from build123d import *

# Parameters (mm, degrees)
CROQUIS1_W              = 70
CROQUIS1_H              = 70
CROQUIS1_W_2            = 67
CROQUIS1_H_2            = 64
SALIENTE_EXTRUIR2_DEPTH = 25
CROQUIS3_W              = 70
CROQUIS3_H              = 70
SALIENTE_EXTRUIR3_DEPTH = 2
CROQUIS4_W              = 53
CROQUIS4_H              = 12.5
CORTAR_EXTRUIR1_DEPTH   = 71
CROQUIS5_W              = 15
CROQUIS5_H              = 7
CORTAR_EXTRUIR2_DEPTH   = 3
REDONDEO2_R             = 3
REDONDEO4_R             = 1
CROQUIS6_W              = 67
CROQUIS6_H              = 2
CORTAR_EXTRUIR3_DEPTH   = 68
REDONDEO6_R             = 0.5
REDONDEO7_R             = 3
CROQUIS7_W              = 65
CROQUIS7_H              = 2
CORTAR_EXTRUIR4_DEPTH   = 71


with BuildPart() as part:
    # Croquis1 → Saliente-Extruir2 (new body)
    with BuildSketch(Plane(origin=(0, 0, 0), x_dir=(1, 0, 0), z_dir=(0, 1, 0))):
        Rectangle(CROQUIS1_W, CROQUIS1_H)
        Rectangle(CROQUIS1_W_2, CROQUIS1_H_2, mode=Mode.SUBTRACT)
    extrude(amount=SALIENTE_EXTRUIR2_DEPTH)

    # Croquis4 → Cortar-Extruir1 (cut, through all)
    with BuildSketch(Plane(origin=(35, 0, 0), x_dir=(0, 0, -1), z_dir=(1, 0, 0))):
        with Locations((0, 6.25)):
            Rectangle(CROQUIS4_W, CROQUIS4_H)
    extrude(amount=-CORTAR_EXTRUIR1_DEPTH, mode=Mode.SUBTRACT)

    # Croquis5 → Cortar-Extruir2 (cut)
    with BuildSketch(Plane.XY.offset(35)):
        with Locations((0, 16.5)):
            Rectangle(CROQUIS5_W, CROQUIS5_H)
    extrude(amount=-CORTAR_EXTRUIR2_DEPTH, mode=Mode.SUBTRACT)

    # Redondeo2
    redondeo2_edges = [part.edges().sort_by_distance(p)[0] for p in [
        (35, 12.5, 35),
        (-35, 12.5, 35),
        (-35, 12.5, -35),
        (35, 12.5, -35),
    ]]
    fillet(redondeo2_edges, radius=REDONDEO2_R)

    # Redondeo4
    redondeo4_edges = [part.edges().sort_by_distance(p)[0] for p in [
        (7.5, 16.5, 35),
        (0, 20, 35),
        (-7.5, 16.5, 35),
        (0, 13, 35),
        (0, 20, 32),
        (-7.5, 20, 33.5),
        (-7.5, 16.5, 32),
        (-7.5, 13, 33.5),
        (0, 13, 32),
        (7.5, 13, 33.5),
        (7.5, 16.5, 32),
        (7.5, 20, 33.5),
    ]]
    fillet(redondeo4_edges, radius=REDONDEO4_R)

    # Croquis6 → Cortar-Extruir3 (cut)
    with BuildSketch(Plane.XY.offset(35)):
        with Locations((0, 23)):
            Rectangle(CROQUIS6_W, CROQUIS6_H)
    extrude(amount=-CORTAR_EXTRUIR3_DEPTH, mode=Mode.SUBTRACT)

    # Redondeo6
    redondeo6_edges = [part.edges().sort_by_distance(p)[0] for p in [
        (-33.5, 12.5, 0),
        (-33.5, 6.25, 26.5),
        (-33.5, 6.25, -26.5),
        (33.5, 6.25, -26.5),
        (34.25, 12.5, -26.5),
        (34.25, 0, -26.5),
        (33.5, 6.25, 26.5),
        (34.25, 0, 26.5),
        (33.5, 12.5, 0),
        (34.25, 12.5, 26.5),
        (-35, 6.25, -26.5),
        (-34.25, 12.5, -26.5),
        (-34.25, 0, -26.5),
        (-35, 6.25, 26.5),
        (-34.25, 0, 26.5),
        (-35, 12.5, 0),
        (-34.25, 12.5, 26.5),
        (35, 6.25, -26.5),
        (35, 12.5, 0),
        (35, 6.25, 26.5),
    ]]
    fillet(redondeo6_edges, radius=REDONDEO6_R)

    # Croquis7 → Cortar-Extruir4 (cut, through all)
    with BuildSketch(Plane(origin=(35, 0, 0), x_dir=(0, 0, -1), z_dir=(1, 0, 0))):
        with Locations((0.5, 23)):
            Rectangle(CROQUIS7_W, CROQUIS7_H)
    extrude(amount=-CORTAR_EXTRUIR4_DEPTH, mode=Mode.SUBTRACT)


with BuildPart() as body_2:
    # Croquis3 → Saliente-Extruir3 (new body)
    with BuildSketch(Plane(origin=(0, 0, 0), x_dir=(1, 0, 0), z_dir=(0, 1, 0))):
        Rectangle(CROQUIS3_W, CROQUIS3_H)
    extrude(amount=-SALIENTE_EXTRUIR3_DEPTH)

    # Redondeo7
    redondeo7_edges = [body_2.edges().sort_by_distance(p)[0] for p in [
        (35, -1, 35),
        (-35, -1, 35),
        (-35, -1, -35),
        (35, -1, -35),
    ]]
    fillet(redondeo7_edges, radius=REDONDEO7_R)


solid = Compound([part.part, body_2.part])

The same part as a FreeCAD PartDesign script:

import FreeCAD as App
import Part
import Sketcher
from FreeCAD import Vector
Q = App.Units.Quantity


def edges_at(feature, points):
    """Names of the edges that pass closest to the given points."""
    edges = feature.Shape.Edges
    near = lambda p: min(range(len(edges)), key=lambda i: edges[i].distToShape(Part.Vertex(*p))[0])
    return sorted({f"Edge{near(p) + 1}" for p in points})


def add_polygon(sketch, points):
    """Adds a closed chain of lines whose ends are joined by coincident constraints."""
    first, n = sketch.GeometryCount, len(points)
    for a, b in zip(points, points[1:] + points[:1]):
        sketch.addGeometry(Part.LineSegment(App.Vector(*a, 0), App.Vector(*b, 0)), False)
    for i in range(n):
        sketch.addConstraint(Sketcher.Constraint("Coincident", first + i, 2, first + (i + 1) % n, 1))

doc = App.newDocument("Part")
body = doc.addObject("PartDesign::Body", "Body")

# Sketch on XZ plane
sketch1 = body.newObject("Sketcher::SketchObject", "Sketch")
sketch1.AttachmentSupport = (doc.getObject("XZ_Plane"), [""])
sketch1.MapMode = "FlatFace"
add_polygon(sketch1, [(-35, -35), (-35, 35), (35, 35), (35, -35)])  # lines 0-3
add_polygon(sketch1, [(34, 32), (-34, 32), (-34, -32), (34, -32)])  # lines 4-7
sketch1.addConstraint([
    Sketcher.Constraint("Vertical", 0),
    Sketcher.Constraint("Horizontal", 1),
    Sketcher.Constraint("Vertical", 2),
    Sketcher.Constraint("Horizontal", 3),
    Sketcher.Constraint("Horizontal", 4),
    Sketcher.Constraint("Vertical", 5),
    Sketcher.Constraint("Horizontal", 6),
    Sketcher.Constraint("Vertical", 7),
    Sketcher.Constraint("Symmetric", 0, 2, 2, 2, -1, 1),
    Sketcher.Constraint("Symmetric", 4, 2, 6, 2, -1, 1),
    Sketcher.Constraint("Equal", 3, 0),
    Sketcher.Constraint("DistanceX", 1, 1, 1, 2, Q("70 mm")),
    Sketcher.Constraint("DistanceX", 4, 2, 4, 1, Q("67 mm")),
    Sketcher.Constraint("DistanceY", 5, 2, 5, 1, Q("64 mm")),
])
pad1 = body.newObject("PartDesign::Pad", "Pad")
pad1.Profile = sketch1
pad1.Length = 25
pad1.Reversed = True

# Sketch on YZ plane
sketch2 = body.newObject("Sketcher::SketchObject", "Sketch001")
sketch2.AttachmentSupport = (doc.getObject("YZ_Plane"), [""])
sketch2.MapMode = "FlatFace"
sketch2.AttachmentOffset = App.Placement(Vector(0, 0, 35), App.Rotation())
add_polygon(sketch2, [(12, 26), (0, 26), (0, -26), (12, -26)])  # lines 0-3
sketch2.addConstraint([
    Sketcher.Constraint("Horizontal", 0),
    Sketcher.Constraint("Vertical", 1),
    Sketcher.Constraint("Horizontal", 2),
    Sketcher.Constraint("Vertical", 3),
    Sketcher.Constraint("Symmetric", 0, 2, 1, 2, -1, 1),
    Sketcher.Constraint("DistanceY", 1, 2, 1, 1, Q("53 mm")),
    Sketcher.Constraint("DistanceX", 0, 2, 0, 1, Q("12.5 mm")),
])
pocket1 = body.newObject("PartDesign::Pocket", "Pocket")
pocket1.Profile = sketch2
pocket1.Type = "ThroughAll"

# Sketch on XY plane
sketch3 = body.newObject("Sketcher::SketchObject", "Sketch002")
sketch3.AttachmentSupport = (doc.getObject("XY_Plane"), [""])
sketch3.MapMode = "FlatFace"
sketch3.AttachmentOffset = App.Placement(Vector(0, 0, 35), App.Rotation())
add_polygon(sketch3, [(-8, 20), (-8, 13), (8, 13), (8, 20)])  # lines 0-3
sketch3.addConstraint([
    Sketcher.Constraint("Vertical", 0),
    Sketcher.Constraint("Horizontal", 1),
    Sketcher.Constraint("Vertical", 2),
    Sketcher.Constraint("Horizontal", 3),
    Sketcher.Constraint("DistanceX", 1, 1, 1, 2, Q("15 mm")),
    Sketcher.Constraint("DistanceY", 0, 2, 0, 1, Q("7 mm")),
    Sketcher.Constraint("DistanceY", -1, 1, 0, 2, Q("13 mm")),
    Sketcher.Constraint("DistanceX", 0, 2, -1, 1, Q("7.5 mm")),
])
pocket2 = body.newObject("PartDesign::Pocket", "Pocket001")
pocket2.Profile = sketch3
pocket2.Length = 3
doc.recompute()

fillet = body.newObject("PartDesign::Fillet", "Fillet")
fillet.Base = (pocket2, edges_at(pocket2, [
    (35, 12.5, 35),
    (-35, 12.5, 35),
    (-35, 12.5, -35),
    (35, 12.5, -35),
]))
fillet.Radius = 3
doc.recompute()

fillet2 = body.newObject("PartDesign::Fillet", "Fillet001")
fillet2.Base = (fillet, edges_at(fillet, [
    (7.5, 16.5, 35),
    (0, 20, 35),
    (-7.5, 16.5, 35),
    (0, 13, 35),
    (0, 20, 32),
    (-7.5, 20, 33.5),
    (-7.5, 16.5, 32),
    (-7.5, 13, 33.5),
    (0, 13, 32),
    (7.5, 13, 33.5),
    (7.5, 16.5, 32),
    (7.5, 20, 33.5),
]))
fillet2.Radius = 1

# Sketch on XY plane
sketch4 = body.newObject("Sketcher::SketchObject", "Sketch003")
sketch4.AttachmentSupport = (doc.getObject("XY_Plane"), [""])
sketch4.MapMode = "FlatFace"
sketch4.AttachmentOffset = App.Placement(Vector(0, 0, 35), App.Rotation())
add_polygon(sketch4, [(-33.5, 24), (-33.5, 22), (33.5, 22), (33.5, 24)])  # lines 0-3
sketch4.addConstraint([
    Sketcher.Constraint("Vertical", 0),
    Sketcher.Constraint("Horizontal", 1),
    Sketcher.Constraint("Vertical", 2),
    Sketcher.Constraint("Horizontal", 3),
    Sketcher.Constraint("DistanceX", 1, 1, 1, 2, Q("67 mm")),
    Sketcher.Constraint("DistanceY", 0, 2, 0, 1, Q("2 mm")),
    Sketcher.Constraint("DistanceY", -1, 1, 0, 2, Q("22 mm")),
    Sketcher.Constraint("DistanceX", 0, 2, -1, 1, Q("33.5 mm")),
])
pocket3 = body.newObject("PartDesign::Pocket", "Pocket002")
pocket3.Profile = sketch4
pocket3.Length = 68
doc.recompute()

fillet3 = body.newObject("PartDesign::Fillet", "Fillet002")
fillet3.Base = (pocket3, edges_at(pocket3, [
    (-33.5, 12.5, 0),
    (-33.5, 6.25, 26.5),
    (-33.5, 6.25, -26.5),
    (33.5, 6.25, -26.5),
    (34.25, 12.5, -26.5),
    (34.25, 0, -26.5),
    (33.5, 6.25, 26.5),
    (34.25, 0, 26.5),
    (33.5, 12.5, 0),
    (34.25, 12.5, 26.5),
    (-35, 6.25, -26.5),
    (-34.25, 12.5, -26.5),
    (-34.25, 0, -26.5),
    (-35, 6.25, 26.5),
    (-34.25, 0, 26.5),
    (-35, 12.5, 0),
    (-34.25, 12.5, 26.5),
    (35, 6.25, -26.5),
    (35, 12.5, 0),
    (35, 6.25, 26.5),
]))
fillet3.Radius = 0.5

# Sketch on YZ plane
sketch5 = body.newObject("Sketcher::SketchObject", "Sketch004")
sketch5.AttachmentSupport = (doc.getObject("YZ_Plane"), [""])
sketch5.MapMode = "FlatFace"
sketch5.AttachmentOffset = App.Placement(Vector(0, 0, 35), App.Rotation())
add_polygon(sketch5, [(24, 32), (22, 32), (22, -33), (24, -33)])  # lines 0-3
sketch5.addConstraint([
    Sketcher.Constraint("Horizontal", 0),
    Sketcher.Constraint("Vertical", 1),
    Sketcher.Constraint("Horizontal", 2),
    Sketcher.Constraint("Vertical", 3),
    Sketcher.Constraint("DistanceX", 0, 2, 0, 1, Q("2 mm")),
    Sketcher.Constraint("DistanceY", 1, 2, 1, 1, Q("65 mm")),
    Sketcher.Constraint("DistanceX", -1, 1, 0, 2, Q("22 mm")),
    Sketcher.Constraint("DistanceY", -1, 1, 0, 2, Q("32 mm")),
])
pocket4 = body.newObject("PartDesign::Pocket", "Pocket003")
pocket4.Profile = sketch5
pocket4.Type = "ThroughAll"
body2 = doc.addObject("PartDesign::Body", "Body001")

# Sketch on XZ plane
sketch6 = body2.newObject("Sketcher::SketchObject", "Sketch005")
sketch6.AttachmentSupport = (doc.getObject("XZ_Plane001"), [""])
sketch6.MapMode = "FlatFace"
add_polygon(sketch6, [(-35, -35), (-35, 35), (35, 35), (35, -35)])  # lines 0-3
sketch6.addConstraint([
    Sketcher.Constraint("Vertical", 0),
    Sketcher.Constraint("Horizontal", 1),
    Sketcher.Constraint("Vertical", 2),
    Sketcher.Constraint("Horizontal", 3),
    Sketcher.Constraint("Symmetric", 0, 2, 2, 2, -1, 1),
    Sketcher.Constraint("Equal", 3, 0),
    Sketcher.Constraint("DistanceX", 1, 1, 1, 2, Q("70 mm")),
])
pad2 = body2.newObject("PartDesign::Pad", "Pad001")
pad2.Profile = sketch6
pad2.Length = 2
doc.recompute()

fillet4 = body2.newObject("PartDesign::Fillet", "Fillet003")
fillet4.Base = (pad2, edges_at(pad2, [
    (35, -1, 35),
    (-35, -1, 35),
    (-35, -1, -35),
    (35, -1, -35),
]))
fillet4.Radius = 3

doc.recompute()
